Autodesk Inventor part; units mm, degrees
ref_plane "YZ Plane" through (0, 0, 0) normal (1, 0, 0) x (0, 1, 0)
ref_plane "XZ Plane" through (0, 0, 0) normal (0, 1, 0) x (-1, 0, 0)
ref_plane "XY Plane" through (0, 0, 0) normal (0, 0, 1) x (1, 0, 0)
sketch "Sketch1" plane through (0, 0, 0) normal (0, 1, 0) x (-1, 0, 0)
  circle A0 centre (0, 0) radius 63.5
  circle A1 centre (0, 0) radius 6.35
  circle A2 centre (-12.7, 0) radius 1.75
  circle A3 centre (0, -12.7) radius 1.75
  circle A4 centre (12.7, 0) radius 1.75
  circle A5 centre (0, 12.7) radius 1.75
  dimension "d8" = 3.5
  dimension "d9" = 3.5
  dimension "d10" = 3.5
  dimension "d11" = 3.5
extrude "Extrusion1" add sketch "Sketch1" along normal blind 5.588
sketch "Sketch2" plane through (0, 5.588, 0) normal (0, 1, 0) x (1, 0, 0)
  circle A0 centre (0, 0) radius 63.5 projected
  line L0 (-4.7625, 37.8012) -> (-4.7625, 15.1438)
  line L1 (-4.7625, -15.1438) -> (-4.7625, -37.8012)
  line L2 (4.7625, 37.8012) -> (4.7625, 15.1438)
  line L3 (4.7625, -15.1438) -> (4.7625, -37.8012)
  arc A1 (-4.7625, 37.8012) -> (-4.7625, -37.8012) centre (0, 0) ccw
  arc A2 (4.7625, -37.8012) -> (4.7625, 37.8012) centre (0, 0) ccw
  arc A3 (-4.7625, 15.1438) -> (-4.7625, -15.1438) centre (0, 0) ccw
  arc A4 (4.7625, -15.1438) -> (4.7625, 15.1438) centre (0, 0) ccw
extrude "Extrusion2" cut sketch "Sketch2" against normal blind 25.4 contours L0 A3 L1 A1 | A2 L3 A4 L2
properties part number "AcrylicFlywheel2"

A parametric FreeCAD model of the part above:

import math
import FreeCAD as App
import Part
import Sketcher
Q = App.Units.Quantity

doc = App.newDocument("Part")
body = doc.addObject("PartDesign::Body", "Body")

# Sketch on XZ plane
sketch1 = body.newObject("Sketcher::SketchObject", "Sketch")
sketch1.AttachmentSupport = (doc.getObject("XZ_Plane"), [""])
sketch1.MapMode = "FlatFace"
sketch1.addGeometry([
    Part.Circle(App.Vector(0, 0, 0), App.Vector(0, 0, 1), 63.5),  # 0
    Part.Circle(App.Vector(0, -12.7, 0), App.Vector(0, 0, 1), 1.8),  # 1
    Part.Circle(App.Vector(12.7, 0, 0), App.Vector(0, 0, 1), 1.8),  # 2
    Part.Circle(App.Vector(0, 0, 0), App.Vector(0, 0, 1), 6.3),  # 3
    Part.Circle(App.Vector(-12.7, 0, 0), App.Vector(0, 0, 1), 1.8),  # 4
    Part.Circle(App.Vector(0, 12.7, 0), App.Vector(0, 0, 1), 1.8),  # 5
], False)
sketch1.addConstraint([
    Sketcher.Constraint("Coincident", 0, 3, -1, 1),
    Sketcher.Constraint("Coincident", 3, 3, -1, 1),
    Sketcher.Constraint("Equal", 1, 2),
    Sketcher.Constraint("Equal", 2, 4),
    Sketcher.Constraint("Equal", 4, 5),
    Sketcher.Constraint("Symmetric", 2, 3, 4, 3, -1, 1),
    Sketcher.Constraint("Symmetric", 1, 3, 5, 3, -1, 1),
    Sketcher.Constraint("PointOnObject", 1, 3, -2),
    Sketcher.Constraint("PointOnObject", 2, 3, -1),
    Sketcher.Constraint("Diameter", 0, Q("5 in")),
    Sketcher.Constraint("Diameter", 1, Q("0.1378 in")),
    Sketcher.Constraint("Diameter", 3, Q("0.5 in")),
    Sketcher.Constraint("DistanceX", 4, 3, 2, 3, Q("1 in")),
    Sketcher.Constraint("DistanceY", 1, 3, 5, 3, Q("1 in")),
])
pad1 = body.newObject("PartDesign::Pad", "Pad")
pad1.Profile = sketch1
pad1.Length = Q("0.22 in")
pad1.Reversed = True

# Sketch on XZ plane
sketch2 = body.newObject("Sketcher::SketchObject", "Sketch001")
sketch2.AttachmentSupport = (doc.getObject("XZ_Plane"), [""])
sketch2.MapMode = "FlatFace"
sketch2.AttachmentOffset = App.Placement(App.Vector(0, 0, -0.22 * 25.4), App.Rotation())
sketch2.addGeometry([
    Part.LineSegment(App.Vector(-5, -15, 0), App.Vector(-5, -38, 0)),  # 0
    Part.ArcOfCircle(Part.Circle(App.Vector(0, 0, 0), App.Vector(0, 0, 1), 38), math.radians(97), math.radians(263)),  # 1
    Part.LineSegment(App.Vector(-5, 38, 0), App.Vector(-5, 15, 0)),  # 2
    Part.ArcOfCircle(Part.Circle(App.Vector(0, 0, 0), App.Vector(0, 0, 1), 16), math.radians(107), math.radians(253)),  # 3
    Part.ArcOfCircle(Part.Circle(App.Vector(0, 0, 0), App.Vector(0, 0, 1), 38), math.radians(-83), math.radians(83)),  # 4
    Part.LineSegment(App.Vector(5, -38, 0), App.Vector(5, -15, 0)),  # 5
    Part.ArcOfCircle(Part.Circle(App.Vector(0, 0, 0), App.Vector(0, 0, 1), 16), math.radians(-73), math.radians(73)),  # 6
    Part.LineSegment(App.Vector(5, 15, 0), App.Vector(5, 38, 0)),  # 7
], False)
sketch2.addConstraint([
    Sketcher.Constraint("Coincident", 0, 2, 1, 2),
    Sketcher.Constraint("Coincident", 1, 1, 2, 1),
    Sketcher.Constraint("Coincident", 2, 2, 3, 1),
    Sketcher.Constraint("Coincident", 3, 2, 0, 1),
    Sketcher.Constraint("Coincident", 4, 1, 5, 1),
    Sketcher.Constraint("Coincident", 5, 2, 6, 1),
    Sketcher.Constraint("Coincident", 6, 2, 7, 1),
    Sketcher.Constraint("Coincident", 7, 2, 4, 2),
    Sketcher.Constraint("Vertical", 0),
    Sketcher.Constraint("Vertical", 2),
    Sketcher.Constraint("Vertical", 5),
    Sketcher.Constraint("Vertical", 7),
    Sketcher.Constraint("Coincident", 1, 3, -1, 1),
    Sketcher.Constraint("Coincident", 3, 3, -1, 1),
    Sketcher.Constraint("Coincident", 4, 3, -1, 1),
    Sketcher.Constraint("Coincident", 6, 3, -1, 1),
    Sketcher.Constraint("Equal", 1, 4),
    Sketcher.Constraint("Equal", 3, 6),
    Sketcher.Constraint("Horizontal", 0, 2, 4, 1),
    Sketcher.Constraint("Horizontal", 2, 2, 6, 2),
    Sketcher.Constraint("Vertical", 0, 2, 1, 1),
    Sketcher.Constraint("Radius", 1, Q("1.5 in")),
    Sketcher.Constraint("Radius", 3, Q("0.625 in")),
    Sketcher.Constraint("DistanceX", 0, 2, -1, 1, Q("0.1875 in")),
])
pocket1 = body.newObject("PartDesign::Pocket", "Pocket")
pocket1.Profile = sketch2
pocket1.Length = Q("1 in")
pocket1.Reversed = True

doc.recompute()
